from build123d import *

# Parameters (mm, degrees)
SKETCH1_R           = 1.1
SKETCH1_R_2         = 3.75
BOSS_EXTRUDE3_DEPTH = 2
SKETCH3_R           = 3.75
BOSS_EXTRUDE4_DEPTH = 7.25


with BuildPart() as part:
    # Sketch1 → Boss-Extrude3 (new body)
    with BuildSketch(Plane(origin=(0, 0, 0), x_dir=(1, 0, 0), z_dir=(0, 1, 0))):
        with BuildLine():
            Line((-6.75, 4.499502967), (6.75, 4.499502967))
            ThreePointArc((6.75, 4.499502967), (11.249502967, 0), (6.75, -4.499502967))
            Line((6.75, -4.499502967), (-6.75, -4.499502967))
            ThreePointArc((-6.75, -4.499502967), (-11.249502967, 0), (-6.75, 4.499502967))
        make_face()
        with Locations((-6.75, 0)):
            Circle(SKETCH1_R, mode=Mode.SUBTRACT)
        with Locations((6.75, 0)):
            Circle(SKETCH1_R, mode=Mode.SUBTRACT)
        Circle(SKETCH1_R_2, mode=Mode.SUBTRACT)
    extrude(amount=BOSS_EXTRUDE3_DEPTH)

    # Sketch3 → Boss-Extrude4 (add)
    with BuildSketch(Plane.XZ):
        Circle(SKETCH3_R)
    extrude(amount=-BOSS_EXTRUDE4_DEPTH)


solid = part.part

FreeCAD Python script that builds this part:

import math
import FreeCAD as App
import Part
import Sketcher
Q = App.Units.Quantity

doc = App.newDocument("Part")
params = doc.addObject("Spreadsheet::Sheet", "Params")
for row, (alias, value) in enumerate([
    ("sketch1_diameter", "2.2 mm"),
    ("sketch1_diameter2", "7.5 mm"),
    ("sketch1_width", "13.5 mm"),
    ("pad1_length", "2 mm"),
    ("sketch2_diameter", "7.5 mm"),
    ("pad2_length", "7.25 mm"),
], start=1):
    params.set(f"A{row}", alias)
    params.set(f"B{row}", "=" + value)
    params.setAlias(f"B{row}", alias)

body = doc.addObject("PartDesign::Body", "Body")

# Sketch on XZ plane
sketch1 = body.newObject("Sketcher::SketchObject", "Sketch")
sketch1.AttachmentSupport = (doc.getObject("XZ_Plane"), [""])
sketch1.MapMode = "FlatFace"
sketch1.addGeometry([
    Part.LineSegment(App.Vector(6.8, -4.5, 0), App.Vector(-6.8, -4.5, 0)),  # 0
    Part.ArcOfCircle(Part.Circle(App.Vector(-6.8, 0, 0), App.Vector(0, 0, 1), 4.5), math.radians(90), math.radians(270)),  # 1
    Part.LineSegment(App.Vector(-6.8, 4.5, 0), App.Vector(6.8, 4.5, 0)),  # 2
    Part.ArcOfCircle(Part.Circle(App.Vector(6.8, 0, 0), App.Vector(0, 0, 1), 4.5), math.radians(-90), math.radians(90)),  # 3
    Part.Circle(App.Vector(6.8, 0, 0), App.Vector(0, 0, 1), 1.1),  # 4
    Part.Circle(App.Vector(0, 0, 0), App.Vector(0, 0, 1), 3.8),  # 5
    Part.Circle(App.Vector(-6.8, 0, 0), App.Vector(0, 0, 1), 1.1),  # 6
], False)
sketch1.addConstraint([
    Sketcher.Constraint("Tangent", 0, 2, 1, 2),
    Sketcher.Constraint("Tangent", 1, 1, 2, 1),
    Sketcher.Constraint("Tangent", 2, 2, 3, 2),
    Sketcher.Constraint("Tangent", 3, 1, 0, 1),
    Sketcher.Constraint("Horizontal", 0),
    Sketcher.Constraint("Horizontal", 2),
    Sketcher.Constraint("Coincident", 5, 3, -1, 1),
    Sketcher.Constraint("Coincident", 4, 3, 3, 3),
    Sketcher.Constraint("Coincident", 6, 3, 1, 3),
    Sketcher.Constraint("Equal", 4, 6),
    Sketcher.Constraint("Symmetric", 1, 3, 3, 3, -1, 1),
    Sketcher.Constraint("Diameter", 4, Q("2.2 mm")),
    Sketcher.Constraint("Diameter", 5, Q("7.5 mm")),
    Sketcher.Constraint("DistanceX", 0, 2, 0, 1, Q("13.5 mm")),
    Sketcher.Constraint("Radius", 1, Q("4.499503 mm")),
])
sketch1.setExpression("Constraints[11]", "Params.sketch1_diameter")
sketch1.setExpression("Constraints[12]", "Params.sketch1_diameter2")
sketch1.setExpression("Constraints[13]", "Params.sketch1_width")
pad1 = body.newObject("PartDesign::Pad", "Pad")
pad1.Profile = sketch1
pad1.setExpression("Length", "Params.pad1_length")
pad1.Reversed = True

# Sketch on XZ plane
sketch2 = body.newObject("Sketcher::SketchObject", "Sketch001")
sketch2.AttachmentSupport = (doc.getObject("XZ_Plane"), [""])
sketch2.MapMode = "FlatFace"
sketch2.addGeometry(Part.Circle(App.Vector(0, 0, 0), App.Vector(0, 0, 1), 3.8), False)
sketch2.addConstraint([
    Sketcher.Constraint("Coincident", 0, 3, -1, 1),
    Sketcher.Constraint("Diameter", 0, Q("7.5 mm")),
])
sketch2.setExpression("Constraints[1]", "Params.sketch2_diameter")
pad2 = body.newObject("PartDesign::Pad", "Pad001")
pad2.Profile = sketch2
pad2.setExpression("Length", "Params.pad2_length")
pad2.Reversed = True

doc.recompute()
